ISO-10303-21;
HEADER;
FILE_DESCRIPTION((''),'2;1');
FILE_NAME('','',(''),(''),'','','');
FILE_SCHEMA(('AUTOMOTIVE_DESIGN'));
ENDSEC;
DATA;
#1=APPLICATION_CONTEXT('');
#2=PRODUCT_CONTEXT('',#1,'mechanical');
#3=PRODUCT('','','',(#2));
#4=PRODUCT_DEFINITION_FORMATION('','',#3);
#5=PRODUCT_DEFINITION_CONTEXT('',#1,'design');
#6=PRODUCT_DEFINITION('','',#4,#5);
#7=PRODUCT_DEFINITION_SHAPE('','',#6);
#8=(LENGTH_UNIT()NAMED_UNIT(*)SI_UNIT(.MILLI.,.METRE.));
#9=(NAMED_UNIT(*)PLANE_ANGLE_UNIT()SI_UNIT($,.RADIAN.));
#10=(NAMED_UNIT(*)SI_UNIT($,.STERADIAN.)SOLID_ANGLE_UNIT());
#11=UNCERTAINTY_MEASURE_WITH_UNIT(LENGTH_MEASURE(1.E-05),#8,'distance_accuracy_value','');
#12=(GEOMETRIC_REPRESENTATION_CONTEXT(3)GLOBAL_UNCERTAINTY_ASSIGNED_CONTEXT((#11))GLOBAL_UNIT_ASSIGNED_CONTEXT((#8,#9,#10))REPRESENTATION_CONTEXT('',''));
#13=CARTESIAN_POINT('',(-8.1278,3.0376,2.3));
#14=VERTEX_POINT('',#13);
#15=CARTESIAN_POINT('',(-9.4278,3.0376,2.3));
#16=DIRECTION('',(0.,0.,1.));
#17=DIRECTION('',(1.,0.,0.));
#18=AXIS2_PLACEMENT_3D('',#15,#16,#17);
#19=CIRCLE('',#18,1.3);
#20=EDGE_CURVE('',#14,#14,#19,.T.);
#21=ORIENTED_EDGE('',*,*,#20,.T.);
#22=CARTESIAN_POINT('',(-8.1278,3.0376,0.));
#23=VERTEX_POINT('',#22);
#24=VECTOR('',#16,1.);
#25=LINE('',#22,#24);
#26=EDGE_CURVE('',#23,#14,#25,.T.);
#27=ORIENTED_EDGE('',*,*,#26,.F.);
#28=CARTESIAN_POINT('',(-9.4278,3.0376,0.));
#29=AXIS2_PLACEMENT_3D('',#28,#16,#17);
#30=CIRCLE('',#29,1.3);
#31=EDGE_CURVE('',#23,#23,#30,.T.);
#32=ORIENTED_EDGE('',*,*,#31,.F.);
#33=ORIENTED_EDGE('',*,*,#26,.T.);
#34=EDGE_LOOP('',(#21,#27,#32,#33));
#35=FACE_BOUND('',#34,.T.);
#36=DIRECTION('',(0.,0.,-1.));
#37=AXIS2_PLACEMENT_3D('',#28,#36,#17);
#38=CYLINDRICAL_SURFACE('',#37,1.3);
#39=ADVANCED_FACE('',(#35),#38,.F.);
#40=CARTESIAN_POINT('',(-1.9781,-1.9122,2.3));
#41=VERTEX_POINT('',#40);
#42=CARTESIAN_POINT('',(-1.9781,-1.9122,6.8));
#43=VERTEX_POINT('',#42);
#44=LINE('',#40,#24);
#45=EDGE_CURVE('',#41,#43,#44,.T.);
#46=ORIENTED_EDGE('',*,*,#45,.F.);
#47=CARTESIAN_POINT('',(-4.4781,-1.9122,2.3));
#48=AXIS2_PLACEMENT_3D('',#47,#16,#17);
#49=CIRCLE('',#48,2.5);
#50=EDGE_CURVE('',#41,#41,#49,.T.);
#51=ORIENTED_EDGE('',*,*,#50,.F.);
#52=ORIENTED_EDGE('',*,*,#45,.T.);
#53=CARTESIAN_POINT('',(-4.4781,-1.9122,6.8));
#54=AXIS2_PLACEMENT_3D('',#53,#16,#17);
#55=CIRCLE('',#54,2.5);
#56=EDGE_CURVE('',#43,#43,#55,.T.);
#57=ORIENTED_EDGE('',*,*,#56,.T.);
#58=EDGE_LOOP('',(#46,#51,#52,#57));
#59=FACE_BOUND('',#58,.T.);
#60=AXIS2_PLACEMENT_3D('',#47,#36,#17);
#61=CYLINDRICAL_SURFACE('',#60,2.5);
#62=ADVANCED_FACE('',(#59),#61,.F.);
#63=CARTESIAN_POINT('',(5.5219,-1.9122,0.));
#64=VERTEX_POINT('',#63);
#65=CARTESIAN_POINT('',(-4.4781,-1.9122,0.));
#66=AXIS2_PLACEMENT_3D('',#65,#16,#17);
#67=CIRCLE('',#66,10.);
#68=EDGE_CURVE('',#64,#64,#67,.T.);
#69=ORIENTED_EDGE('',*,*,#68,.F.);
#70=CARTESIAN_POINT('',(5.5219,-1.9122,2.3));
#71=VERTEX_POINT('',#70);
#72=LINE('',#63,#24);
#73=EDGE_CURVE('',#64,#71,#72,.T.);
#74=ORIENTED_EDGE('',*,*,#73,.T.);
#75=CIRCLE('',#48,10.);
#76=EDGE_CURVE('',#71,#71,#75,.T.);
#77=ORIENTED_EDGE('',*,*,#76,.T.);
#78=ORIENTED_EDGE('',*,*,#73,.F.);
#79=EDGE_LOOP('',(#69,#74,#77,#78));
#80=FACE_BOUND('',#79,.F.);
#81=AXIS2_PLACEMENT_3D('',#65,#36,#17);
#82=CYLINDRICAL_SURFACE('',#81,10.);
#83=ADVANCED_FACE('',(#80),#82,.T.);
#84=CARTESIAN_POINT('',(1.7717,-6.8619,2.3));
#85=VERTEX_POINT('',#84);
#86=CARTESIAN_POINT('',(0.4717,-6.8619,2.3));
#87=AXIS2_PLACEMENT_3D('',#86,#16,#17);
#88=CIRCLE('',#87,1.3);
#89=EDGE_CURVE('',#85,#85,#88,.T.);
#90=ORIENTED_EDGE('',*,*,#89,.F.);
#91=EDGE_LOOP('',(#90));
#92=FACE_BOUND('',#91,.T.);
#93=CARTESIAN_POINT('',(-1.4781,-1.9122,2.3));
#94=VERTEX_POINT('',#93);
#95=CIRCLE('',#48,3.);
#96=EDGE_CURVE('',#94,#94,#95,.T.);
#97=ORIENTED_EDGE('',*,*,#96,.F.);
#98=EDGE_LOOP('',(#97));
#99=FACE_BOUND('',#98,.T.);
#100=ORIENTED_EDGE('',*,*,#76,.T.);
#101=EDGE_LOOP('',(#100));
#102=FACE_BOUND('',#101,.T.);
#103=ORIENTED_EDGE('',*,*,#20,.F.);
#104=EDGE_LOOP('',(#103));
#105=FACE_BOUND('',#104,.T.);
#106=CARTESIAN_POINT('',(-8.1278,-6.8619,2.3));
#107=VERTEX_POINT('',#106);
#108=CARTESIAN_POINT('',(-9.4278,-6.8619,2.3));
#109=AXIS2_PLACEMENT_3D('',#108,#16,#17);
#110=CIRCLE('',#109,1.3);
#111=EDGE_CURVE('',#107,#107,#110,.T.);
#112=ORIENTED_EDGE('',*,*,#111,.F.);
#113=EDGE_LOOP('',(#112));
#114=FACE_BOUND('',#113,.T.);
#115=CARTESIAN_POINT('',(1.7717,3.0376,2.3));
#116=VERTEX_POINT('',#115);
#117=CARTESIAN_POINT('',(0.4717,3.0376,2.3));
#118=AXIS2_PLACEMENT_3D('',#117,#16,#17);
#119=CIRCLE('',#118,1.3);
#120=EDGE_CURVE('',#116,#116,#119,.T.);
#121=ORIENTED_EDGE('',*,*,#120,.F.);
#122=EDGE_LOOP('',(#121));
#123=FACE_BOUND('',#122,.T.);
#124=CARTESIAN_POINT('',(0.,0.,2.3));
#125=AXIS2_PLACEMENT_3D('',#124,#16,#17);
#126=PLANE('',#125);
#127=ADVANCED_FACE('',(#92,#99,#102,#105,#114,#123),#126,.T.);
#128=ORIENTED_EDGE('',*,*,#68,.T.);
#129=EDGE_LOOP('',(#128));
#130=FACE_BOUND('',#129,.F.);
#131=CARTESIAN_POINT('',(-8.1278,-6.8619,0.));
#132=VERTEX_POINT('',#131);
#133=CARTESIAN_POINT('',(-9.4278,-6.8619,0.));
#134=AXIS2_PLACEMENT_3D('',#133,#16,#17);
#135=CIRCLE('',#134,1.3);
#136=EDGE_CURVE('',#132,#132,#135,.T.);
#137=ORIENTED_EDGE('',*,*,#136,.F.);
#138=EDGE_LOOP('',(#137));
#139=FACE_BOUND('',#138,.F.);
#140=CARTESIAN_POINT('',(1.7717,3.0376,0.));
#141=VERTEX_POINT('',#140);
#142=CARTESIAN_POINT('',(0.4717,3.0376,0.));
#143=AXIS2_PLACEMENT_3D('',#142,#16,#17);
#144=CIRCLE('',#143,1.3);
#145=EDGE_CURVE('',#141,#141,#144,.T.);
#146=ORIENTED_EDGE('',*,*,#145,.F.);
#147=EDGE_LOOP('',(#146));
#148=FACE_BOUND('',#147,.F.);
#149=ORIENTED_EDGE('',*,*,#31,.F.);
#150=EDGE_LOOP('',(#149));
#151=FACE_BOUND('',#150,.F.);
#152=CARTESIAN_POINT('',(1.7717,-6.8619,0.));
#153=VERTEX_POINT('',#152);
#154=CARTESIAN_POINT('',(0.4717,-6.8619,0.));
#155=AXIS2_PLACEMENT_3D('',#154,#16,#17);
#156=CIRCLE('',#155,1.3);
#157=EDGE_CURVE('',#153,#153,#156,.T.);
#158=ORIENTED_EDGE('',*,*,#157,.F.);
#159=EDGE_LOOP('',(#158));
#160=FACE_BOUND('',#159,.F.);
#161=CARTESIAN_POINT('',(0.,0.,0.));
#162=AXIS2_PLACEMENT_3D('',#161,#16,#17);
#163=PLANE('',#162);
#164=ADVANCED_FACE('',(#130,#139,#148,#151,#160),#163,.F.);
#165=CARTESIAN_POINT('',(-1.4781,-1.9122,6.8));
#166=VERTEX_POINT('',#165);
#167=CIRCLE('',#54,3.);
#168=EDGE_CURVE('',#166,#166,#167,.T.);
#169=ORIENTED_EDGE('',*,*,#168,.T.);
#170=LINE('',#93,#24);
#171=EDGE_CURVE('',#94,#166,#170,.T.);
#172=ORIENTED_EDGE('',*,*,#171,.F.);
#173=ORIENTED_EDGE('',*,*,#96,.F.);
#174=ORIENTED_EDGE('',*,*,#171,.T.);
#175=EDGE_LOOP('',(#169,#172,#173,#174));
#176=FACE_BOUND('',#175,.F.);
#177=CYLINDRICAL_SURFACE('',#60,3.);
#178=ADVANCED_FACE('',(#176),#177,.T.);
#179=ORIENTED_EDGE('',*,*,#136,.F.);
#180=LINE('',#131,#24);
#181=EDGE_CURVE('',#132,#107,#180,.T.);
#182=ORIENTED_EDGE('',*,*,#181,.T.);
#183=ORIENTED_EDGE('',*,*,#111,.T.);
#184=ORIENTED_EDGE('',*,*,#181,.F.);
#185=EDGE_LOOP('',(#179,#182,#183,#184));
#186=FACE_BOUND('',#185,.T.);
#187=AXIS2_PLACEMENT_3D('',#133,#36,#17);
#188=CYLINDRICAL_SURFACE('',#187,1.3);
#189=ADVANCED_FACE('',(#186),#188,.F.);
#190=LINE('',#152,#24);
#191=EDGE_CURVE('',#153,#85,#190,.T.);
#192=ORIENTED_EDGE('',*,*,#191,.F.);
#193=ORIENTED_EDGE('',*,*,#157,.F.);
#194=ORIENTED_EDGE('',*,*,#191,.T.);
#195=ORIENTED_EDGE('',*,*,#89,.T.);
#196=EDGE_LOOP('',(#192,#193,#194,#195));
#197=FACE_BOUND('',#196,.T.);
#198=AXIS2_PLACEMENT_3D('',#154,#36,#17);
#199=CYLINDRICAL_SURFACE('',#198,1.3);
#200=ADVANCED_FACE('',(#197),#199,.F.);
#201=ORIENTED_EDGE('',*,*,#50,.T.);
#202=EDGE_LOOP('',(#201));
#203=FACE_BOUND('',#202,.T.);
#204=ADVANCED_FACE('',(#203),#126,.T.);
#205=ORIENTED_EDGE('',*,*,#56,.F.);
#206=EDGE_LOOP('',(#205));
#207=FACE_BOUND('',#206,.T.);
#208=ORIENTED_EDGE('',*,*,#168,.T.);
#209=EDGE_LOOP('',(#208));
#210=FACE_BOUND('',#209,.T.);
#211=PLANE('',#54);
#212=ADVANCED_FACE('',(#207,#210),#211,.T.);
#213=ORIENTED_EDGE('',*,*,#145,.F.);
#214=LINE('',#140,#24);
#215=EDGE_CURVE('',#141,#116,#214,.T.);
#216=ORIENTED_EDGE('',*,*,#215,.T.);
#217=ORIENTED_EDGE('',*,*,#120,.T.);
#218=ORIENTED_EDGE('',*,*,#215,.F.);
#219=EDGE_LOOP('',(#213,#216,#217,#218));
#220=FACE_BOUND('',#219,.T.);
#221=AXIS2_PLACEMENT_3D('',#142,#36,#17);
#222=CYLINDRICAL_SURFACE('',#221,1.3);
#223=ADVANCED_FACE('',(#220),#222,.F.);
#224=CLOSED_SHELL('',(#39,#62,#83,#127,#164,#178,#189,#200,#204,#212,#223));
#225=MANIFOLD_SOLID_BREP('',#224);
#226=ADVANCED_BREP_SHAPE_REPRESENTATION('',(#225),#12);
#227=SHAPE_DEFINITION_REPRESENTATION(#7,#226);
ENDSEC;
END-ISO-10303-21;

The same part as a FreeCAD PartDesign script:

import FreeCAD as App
import Part
import Sketcher

V = App.Vector

doc = App.newDocument("Part")
body = doc.addObject("PartDesign::Body", "Body")

# Sketch on XY plane
sketch1 = doc.addObject("Sketcher::SketchObject", "Sketch")
body.addObject(sketch1)
sketch1.AttachmentSupport = (doc.XY_Plane, [""])
sketch1.MapMode = "FlatFace"
sketch1.addGeometry(Part.Circle(V(-4.5, -1.9, 0), V(0, 0, 1), 10), False)
sketch1.addGeometry(Part.Circle(V(-9.4, -6.9, 0), V(0, 0, 1), 1.3), False)
sketch1.addGeometry(Part.Circle(V(0.5, -6.9, 0), V(0, 0, 1), 1.3), False)
sketch1.addGeometry(Part.Circle(V(-9.4, 3, 0), V(0, 0, 1), 1.3), False)
sketch1.addGeometry(Part.Circle(V(0.5, 3, 0), V(0, 0, 1), 1.3), False)
sketch1.addConstraint(Sketcher.Constraint("Equal", 1, 2))
sketch1.addConstraint(Sketcher.Constraint("Equal", 2, 3))
sketch1.addConstraint(Sketcher.Constraint("Equal", 3, 4))
sketch1.addConstraint(Sketcher.Constraint("Horizontal", 1, 3, 2, 3))
sketch1.addConstraint(Sketcher.Constraint("Horizontal", 3, 3, 4, 3))
sketch1.addConstraint(Sketcher.Constraint("Vertical", 1, 3, 3, 3))
sketch1.addConstraint(Sketcher.Constraint("Vertical", 2, 3, 4, 3))
sketch1.addConstraint(Sketcher.Constraint("Diameter", 0, 20.0))
sketch1.addConstraint(Sketcher.Constraint("Diameter", 1, 2.6))
sketch1.addConstraint(Sketcher.Constraint("DistanceX", 0, 3, -1, 1, 4.478))
sketch1.addConstraint(Sketcher.Constraint("DistanceY", 1, 3, -1, 1, 6.862))
sketch1.addConstraint(Sketcher.Constraint("DistanceY", 0, 3, -1, 1, 1.9122))
sketch1.addConstraint(Sketcher.Constraint("DistanceX", 1, 3, -1, 1, 9.4278))
sketch1.addConstraint(Sketcher.Constraint("DistanceX", -1, 1, 2, 3, 0.4717))
sketch1.addConstraint(Sketcher.Constraint("DistanceY", -1, 1, 3, 3, 3.0376))
pad1 = doc.addObject("PartDesign::Pad", "Pad")
body.addObject(pad1)
pad1.Profile = sketch1
pad1.Length = 2.3

# Sketch on XY plane
sketch2 = doc.addObject("Sketcher::SketchObject", "Sketch001")
body.addObject(sketch2)
sketch2.AttachmentSupport = (doc.XY_Plane, [""])
sketch2.MapMode = "FlatFace"
sketch2.AttachmentOffset = App.Placement(V(0, 0, 2.3), App.Rotation())
sketch2.addGeometry(Part.Circle(V(-4.5, -1.9, 0), V(0, 0, 1), 3), False)
sketch2.addGeometry(Part.Circle(V(-4.5, -1.9, 0), V(0, 0, 1), 2.5), False)
sketch2.addConstraint(Sketcher.Constraint("Coincident", 1, 3, 0, 3))
sketch2.addConstraint(Sketcher.Constraint("Diameter", 0, 6.0))
sketch2.addConstraint(Sketcher.Constraint("Diameter", 1, 5.0))
sketch2.addConstraint(Sketcher.Constraint("DistanceX", 0, 3, -1, 1, 4.478))
sketch2.addConstraint(Sketcher.Constraint("DistanceY", 0, 3, -1, 1, 1.9122))
pad2 = doc.addObject("PartDesign::Pad", "Pad001")
body.addObject(pad2)
pad2.Profile = sketch2
pad2.Length = 4.5

doc.recompute()
